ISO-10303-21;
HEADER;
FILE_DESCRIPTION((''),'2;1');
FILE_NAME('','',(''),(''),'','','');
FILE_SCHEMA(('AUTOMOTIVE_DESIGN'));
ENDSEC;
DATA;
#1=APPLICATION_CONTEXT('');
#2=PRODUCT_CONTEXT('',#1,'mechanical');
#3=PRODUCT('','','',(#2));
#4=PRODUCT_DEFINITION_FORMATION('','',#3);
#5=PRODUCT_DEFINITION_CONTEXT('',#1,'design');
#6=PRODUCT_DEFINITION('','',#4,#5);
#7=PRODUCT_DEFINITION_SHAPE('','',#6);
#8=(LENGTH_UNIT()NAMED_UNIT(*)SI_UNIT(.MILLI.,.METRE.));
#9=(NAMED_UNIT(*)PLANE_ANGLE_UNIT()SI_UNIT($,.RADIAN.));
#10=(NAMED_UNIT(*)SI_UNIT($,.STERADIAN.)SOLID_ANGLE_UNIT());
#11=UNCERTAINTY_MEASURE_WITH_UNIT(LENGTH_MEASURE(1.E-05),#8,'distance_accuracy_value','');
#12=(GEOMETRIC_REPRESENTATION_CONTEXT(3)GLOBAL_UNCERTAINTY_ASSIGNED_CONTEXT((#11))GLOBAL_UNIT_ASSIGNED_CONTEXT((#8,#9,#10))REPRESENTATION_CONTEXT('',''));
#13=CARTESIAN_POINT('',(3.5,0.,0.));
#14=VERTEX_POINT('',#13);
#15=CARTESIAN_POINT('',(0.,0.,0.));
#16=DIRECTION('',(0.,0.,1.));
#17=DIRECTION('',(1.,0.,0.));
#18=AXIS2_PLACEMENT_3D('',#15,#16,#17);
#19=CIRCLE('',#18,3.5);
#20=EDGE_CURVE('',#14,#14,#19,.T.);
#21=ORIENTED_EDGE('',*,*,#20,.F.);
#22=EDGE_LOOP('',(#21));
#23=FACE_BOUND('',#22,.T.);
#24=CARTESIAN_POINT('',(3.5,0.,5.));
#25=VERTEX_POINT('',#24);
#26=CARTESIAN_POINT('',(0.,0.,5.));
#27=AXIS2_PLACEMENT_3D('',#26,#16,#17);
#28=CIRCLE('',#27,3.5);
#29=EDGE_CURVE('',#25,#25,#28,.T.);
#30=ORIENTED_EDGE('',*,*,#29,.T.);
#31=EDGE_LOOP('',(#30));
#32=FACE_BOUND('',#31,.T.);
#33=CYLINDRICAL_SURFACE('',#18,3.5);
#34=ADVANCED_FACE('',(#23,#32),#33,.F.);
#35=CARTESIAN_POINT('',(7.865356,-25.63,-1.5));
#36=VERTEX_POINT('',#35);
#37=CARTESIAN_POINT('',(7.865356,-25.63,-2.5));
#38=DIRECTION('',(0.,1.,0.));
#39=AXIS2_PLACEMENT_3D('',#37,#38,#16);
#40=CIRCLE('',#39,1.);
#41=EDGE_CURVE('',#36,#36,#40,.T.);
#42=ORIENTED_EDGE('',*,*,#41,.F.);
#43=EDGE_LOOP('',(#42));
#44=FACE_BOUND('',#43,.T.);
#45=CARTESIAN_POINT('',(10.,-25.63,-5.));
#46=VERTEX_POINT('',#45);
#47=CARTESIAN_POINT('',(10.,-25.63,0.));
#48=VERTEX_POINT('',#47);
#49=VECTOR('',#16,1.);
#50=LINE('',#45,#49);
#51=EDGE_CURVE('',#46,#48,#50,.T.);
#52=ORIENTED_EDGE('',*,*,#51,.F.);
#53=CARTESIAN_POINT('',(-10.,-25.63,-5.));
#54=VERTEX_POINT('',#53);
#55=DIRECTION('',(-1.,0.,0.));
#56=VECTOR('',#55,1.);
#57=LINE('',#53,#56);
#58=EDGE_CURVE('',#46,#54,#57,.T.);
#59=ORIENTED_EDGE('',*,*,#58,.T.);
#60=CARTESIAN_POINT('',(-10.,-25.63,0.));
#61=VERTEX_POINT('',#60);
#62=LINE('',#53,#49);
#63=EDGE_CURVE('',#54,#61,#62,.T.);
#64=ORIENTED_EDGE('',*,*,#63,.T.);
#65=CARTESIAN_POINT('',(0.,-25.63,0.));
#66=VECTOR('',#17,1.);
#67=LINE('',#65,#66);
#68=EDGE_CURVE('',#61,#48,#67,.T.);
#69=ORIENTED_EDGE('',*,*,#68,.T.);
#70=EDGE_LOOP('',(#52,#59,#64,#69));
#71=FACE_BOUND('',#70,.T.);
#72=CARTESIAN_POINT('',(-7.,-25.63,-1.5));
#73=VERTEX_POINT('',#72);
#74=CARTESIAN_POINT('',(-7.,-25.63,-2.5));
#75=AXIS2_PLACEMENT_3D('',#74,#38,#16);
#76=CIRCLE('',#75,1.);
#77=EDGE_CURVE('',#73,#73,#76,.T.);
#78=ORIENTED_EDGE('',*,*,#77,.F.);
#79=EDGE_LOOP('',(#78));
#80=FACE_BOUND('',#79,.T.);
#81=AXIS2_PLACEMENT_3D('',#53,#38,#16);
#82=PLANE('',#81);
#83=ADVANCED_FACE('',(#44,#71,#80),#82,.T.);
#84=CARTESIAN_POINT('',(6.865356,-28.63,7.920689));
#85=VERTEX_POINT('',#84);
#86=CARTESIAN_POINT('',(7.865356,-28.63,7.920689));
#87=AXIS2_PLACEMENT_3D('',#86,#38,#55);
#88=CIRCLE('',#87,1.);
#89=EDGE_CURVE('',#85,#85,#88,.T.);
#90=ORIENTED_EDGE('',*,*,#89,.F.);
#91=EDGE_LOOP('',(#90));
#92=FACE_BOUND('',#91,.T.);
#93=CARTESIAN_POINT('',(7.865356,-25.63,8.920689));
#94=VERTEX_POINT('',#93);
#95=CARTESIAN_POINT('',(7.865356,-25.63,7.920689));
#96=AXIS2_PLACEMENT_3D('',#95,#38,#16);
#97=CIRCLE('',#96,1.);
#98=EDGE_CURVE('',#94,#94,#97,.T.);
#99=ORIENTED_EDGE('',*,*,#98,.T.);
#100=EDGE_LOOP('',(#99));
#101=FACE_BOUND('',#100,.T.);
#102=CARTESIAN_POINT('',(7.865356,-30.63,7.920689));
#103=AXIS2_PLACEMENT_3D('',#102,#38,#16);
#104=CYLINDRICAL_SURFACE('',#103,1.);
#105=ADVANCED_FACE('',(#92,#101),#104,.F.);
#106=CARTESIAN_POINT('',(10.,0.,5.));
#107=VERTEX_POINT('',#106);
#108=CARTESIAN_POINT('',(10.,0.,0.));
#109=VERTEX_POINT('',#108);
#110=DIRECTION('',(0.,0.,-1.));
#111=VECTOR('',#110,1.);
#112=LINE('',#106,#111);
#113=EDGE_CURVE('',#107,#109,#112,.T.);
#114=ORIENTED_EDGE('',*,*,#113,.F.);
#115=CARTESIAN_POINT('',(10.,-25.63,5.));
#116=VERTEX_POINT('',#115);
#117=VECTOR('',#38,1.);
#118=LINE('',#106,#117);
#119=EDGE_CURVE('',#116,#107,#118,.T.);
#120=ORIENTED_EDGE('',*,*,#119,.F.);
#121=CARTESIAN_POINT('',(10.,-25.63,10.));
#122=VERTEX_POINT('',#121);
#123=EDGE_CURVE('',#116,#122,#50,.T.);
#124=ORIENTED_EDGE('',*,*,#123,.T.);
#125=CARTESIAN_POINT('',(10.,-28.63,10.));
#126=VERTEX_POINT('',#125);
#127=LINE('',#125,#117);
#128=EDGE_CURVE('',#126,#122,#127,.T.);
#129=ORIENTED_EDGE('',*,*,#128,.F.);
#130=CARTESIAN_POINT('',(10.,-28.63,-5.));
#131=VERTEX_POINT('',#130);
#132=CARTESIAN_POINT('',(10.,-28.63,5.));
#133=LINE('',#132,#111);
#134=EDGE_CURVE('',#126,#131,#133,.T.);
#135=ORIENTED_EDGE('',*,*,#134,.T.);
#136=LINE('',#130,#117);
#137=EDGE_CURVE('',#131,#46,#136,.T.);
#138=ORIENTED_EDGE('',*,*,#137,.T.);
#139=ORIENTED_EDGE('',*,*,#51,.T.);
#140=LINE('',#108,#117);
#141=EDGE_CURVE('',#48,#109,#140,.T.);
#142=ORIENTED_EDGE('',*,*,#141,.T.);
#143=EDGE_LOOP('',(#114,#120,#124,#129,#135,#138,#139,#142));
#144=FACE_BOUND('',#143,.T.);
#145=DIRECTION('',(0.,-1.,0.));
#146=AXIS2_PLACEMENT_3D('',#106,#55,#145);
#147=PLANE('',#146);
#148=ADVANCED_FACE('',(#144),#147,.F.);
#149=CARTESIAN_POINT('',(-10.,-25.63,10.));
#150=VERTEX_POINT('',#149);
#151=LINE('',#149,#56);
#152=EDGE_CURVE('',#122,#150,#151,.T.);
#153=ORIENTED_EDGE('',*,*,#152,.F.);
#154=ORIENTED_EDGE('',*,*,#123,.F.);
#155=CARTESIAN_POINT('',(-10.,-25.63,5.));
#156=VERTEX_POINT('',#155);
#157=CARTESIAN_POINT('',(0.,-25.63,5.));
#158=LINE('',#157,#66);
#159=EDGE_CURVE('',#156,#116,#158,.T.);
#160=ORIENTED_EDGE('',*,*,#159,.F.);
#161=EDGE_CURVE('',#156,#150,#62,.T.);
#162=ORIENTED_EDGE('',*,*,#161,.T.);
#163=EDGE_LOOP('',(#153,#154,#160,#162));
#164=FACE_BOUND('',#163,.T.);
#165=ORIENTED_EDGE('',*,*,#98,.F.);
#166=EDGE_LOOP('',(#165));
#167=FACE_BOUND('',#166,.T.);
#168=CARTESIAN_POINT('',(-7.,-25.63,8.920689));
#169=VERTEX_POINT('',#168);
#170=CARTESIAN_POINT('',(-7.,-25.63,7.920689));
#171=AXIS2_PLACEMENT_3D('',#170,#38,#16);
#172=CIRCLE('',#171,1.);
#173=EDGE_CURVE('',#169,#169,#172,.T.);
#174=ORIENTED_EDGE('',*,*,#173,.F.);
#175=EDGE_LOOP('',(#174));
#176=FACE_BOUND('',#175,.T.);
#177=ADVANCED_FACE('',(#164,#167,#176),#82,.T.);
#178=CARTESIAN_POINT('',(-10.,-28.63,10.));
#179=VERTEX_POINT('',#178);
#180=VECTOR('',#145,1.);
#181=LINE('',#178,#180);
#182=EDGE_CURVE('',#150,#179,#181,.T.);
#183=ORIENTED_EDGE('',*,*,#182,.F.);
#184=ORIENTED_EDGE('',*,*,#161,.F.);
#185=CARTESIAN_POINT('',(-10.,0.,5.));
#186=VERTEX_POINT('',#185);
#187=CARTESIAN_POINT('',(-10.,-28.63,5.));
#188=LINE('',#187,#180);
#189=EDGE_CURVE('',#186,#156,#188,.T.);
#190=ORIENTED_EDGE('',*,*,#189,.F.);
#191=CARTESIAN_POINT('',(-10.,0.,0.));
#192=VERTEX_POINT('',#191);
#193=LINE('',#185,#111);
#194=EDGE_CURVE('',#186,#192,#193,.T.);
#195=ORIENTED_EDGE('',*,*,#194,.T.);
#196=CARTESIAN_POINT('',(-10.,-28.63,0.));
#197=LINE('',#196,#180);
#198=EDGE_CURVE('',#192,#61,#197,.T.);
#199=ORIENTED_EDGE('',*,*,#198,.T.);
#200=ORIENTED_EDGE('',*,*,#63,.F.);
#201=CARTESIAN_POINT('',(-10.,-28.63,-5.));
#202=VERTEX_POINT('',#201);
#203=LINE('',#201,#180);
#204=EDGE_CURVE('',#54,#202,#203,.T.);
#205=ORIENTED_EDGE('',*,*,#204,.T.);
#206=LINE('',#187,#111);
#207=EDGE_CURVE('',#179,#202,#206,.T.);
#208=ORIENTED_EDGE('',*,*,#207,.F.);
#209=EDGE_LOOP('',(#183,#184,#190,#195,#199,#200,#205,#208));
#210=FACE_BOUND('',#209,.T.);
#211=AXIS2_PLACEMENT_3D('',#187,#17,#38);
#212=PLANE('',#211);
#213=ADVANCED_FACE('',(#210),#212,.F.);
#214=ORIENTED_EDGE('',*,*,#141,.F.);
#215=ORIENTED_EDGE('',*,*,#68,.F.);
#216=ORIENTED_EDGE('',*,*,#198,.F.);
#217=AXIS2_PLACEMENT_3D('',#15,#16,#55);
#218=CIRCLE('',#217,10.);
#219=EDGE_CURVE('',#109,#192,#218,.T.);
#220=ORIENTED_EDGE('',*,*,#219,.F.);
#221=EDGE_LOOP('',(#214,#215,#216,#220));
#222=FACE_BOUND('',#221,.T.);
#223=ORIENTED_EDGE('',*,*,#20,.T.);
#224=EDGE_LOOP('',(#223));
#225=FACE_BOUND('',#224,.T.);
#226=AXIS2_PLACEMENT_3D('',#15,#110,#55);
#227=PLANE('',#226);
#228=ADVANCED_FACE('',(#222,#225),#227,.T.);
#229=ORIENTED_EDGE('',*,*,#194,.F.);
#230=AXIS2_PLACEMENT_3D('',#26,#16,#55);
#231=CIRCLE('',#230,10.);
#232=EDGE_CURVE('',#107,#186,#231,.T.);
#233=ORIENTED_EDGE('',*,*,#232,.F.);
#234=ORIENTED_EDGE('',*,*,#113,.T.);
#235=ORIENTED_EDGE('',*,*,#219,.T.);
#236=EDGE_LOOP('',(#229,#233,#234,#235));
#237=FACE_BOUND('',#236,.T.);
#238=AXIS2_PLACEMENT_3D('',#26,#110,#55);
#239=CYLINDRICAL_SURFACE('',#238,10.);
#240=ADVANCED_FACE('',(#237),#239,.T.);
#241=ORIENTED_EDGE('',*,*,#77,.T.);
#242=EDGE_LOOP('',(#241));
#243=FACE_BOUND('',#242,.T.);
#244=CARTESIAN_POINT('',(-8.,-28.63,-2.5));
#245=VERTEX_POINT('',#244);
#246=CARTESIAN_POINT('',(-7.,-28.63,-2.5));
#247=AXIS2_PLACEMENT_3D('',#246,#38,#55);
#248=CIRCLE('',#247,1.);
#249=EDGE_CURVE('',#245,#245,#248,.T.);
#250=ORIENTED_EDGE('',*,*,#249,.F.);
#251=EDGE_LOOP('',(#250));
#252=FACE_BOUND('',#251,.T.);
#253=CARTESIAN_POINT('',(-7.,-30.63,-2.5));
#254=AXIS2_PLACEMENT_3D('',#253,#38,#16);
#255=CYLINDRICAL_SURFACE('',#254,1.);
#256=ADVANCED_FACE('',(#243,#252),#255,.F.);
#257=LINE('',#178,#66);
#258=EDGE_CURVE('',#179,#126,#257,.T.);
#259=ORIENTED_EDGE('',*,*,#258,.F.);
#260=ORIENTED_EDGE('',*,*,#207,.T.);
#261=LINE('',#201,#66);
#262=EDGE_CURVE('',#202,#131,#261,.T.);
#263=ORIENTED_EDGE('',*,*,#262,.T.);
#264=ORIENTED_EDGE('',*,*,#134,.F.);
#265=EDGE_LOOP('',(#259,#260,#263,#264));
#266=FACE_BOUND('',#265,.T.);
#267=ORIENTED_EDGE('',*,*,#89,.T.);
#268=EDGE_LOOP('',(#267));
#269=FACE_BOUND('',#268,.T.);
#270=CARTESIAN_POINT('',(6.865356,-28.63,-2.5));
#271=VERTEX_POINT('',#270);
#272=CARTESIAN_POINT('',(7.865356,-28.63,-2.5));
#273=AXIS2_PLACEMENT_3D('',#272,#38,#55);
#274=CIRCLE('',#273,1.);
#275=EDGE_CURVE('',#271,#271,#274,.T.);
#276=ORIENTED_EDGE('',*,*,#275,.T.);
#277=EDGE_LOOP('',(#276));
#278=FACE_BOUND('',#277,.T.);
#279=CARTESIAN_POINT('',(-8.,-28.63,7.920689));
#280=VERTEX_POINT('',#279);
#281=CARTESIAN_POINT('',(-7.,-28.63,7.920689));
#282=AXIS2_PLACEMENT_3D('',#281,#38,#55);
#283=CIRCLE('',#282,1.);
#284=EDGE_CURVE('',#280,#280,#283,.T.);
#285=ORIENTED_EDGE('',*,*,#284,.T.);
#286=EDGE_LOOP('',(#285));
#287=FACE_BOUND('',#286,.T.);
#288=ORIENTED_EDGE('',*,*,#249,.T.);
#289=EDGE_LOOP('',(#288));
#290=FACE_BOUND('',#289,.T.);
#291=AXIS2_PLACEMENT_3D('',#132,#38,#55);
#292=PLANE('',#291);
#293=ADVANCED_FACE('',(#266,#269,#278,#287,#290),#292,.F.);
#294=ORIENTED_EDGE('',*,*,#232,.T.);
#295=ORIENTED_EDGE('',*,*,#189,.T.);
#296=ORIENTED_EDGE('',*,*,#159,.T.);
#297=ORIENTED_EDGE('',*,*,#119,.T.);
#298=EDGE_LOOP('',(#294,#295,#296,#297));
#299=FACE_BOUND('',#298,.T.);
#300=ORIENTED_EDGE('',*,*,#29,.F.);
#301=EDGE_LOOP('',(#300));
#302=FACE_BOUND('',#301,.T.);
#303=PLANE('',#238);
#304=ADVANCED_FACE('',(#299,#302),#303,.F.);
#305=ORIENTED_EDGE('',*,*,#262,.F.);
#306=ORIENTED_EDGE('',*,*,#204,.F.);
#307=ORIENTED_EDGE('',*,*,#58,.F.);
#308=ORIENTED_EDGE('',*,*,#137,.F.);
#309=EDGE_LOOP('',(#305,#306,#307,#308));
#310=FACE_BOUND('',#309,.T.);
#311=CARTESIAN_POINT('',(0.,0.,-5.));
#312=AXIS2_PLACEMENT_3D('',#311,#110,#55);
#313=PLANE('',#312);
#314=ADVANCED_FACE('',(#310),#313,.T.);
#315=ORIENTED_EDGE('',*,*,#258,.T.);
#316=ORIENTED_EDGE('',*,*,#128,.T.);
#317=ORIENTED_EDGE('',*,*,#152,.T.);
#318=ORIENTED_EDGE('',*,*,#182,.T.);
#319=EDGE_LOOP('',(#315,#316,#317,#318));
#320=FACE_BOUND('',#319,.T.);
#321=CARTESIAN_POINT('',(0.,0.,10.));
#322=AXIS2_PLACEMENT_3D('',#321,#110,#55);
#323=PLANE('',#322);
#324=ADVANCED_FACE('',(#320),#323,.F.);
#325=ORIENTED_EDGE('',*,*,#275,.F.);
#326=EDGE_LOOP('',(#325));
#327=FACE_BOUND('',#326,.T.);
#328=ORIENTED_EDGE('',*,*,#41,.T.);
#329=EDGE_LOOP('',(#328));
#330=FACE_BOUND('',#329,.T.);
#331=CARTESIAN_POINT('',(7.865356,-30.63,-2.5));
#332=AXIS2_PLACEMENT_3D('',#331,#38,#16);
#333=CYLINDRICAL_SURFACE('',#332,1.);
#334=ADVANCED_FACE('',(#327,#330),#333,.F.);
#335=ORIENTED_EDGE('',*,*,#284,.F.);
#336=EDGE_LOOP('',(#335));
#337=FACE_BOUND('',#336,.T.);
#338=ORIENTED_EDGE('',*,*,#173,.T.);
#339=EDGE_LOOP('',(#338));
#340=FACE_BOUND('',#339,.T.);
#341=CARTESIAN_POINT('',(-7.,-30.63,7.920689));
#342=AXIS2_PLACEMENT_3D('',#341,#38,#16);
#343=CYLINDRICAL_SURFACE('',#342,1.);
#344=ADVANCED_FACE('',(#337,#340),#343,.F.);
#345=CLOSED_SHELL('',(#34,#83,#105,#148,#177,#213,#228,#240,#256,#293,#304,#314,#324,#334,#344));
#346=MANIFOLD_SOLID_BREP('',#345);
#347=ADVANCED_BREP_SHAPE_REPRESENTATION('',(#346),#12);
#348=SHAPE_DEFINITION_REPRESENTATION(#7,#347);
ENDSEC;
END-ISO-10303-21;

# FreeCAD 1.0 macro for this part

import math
import FreeCAD as App
import Part
import Sketcher
from FreeCAD import Vector
Q = App.Units.Quantity


def add_polygon(sketch, points):
    """Adds a closed chain of lines whose ends are joined by coincident constraints."""
    first, n = sketch.GeometryCount, len(points)
    for a, b in zip(points, points[1:] + points[:1]):
        sketch.addGeometry(Part.LineSegment(App.Vector(*a, 0), App.Vector(*b, 0)), False)
    for i in range(n):
        sketch.addConstraint(Sketcher.Constraint("Coincident", first + i, 2, first + (i + 1) % n, 1))

doc = App.newDocument("Part")
body = doc.addObject("PartDesign::Body", "Body")

# Sketch on XY plane
sketch1 = doc.addObject("Sketcher::SketchObject", "Sketch")
body.addObject(sketch1)
sketch1.AttachmentSupport = (doc.XY_Plane, [""])
sketch1.MapMode = "FlatFace"
sketch1.addGeometry([
    Part.LineSegment(Vector(-10, 0, 0), Vector(-10, -28.63, 0)),
    Part.LineSegment(Vector(-10, -28.63, 0), Vector(10, -28.63, 0)),
    Part.LineSegment(Vector(10, -28.63, 0), Vector(10, 0, 0)),
    Part.ArcOfCircle(Part.Circle(Vector(0, 0, 0), Vector(0, 0, 1), 10), math.radians(0), math.radians(180)),
], False)
sketch1.addConstraint([
    Sketcher.Constraint("Coincident", 0, 2, 1, 1),
    Sketcher.Constraint("Coincident", 1, 2, 2, 1),
    Sketcher.Constraint("Tangent", 2, 2, 3, 1),
    Sketcher.Constraint("Tangent", 3, 2, 0, 1),
    Sketcher.Constraint("Vertical", 0),
    Sketcher.Constraint("Horizontal", 1),
    Sketcher.Constraint("Vertical", 2),
    Sketcher.Constraint("Coincident", 3, 3, -1, 1),
    Sketcher.Constraint("Radius", 3, Q("10 mm")),
    Sketcher.Constraint("DistanceY", 0, 2, 0, 1, Q("28.63 mm")),
])
pad1 = doc.addObject("PartDesign::Pad", "Pad")
body.addObject(pad1)
pad1.Profile = sketch1
pad1.Length = 5

# Sketch on XY plane
sketch2 = doc.addObject("Sketcher::SketchObject", "Sketch001")
body.addObject(sketch2)
sketch2.AttachmentSupport = (doc.XY_Plane, [""])
sketch2.MapMode = "FlatFace"
sketch2.AttachmentOffset = App.Placement(Vector(0, 0, 5), App.Rotation())
sketch2.addGeometry(Part.Circle(Vector(0, 0, 0), Vector(0, 0, 1), 3.5), False)
sketch2.addConstraint([
    Sketcher.Constraint("Coincident", 0, 3, -1, 1),
    Sketcher.Constraint("Diameter", 0, Q("7 mm")),
])
pocket1 = doc.addObject("PartDesign::Pocket", "Pocket")
body.addObject(pocket1)
pocket1.Profile = sketch2
pocket1.Length = 5

# Sketch on XY plane
sketch3 = doc.addObject("Sketcher::SketchObject", "Sketch002")
body.addObject(sketch3)
sketch3.AttachmentSupport = (doc.XY_Plane, [""])
sketch3.MapMode = "FlatFace"
sketch3.AttachmentOffset = App.Placement(Vector(0, 0, 5), App.Rotation())
add_polygon(sketch3, [(-10, -25.63), (-10, -28.63), (10, -28.63), (10, -25.63)])  # lines 0-3
sketch3.addConstraint([
    Sketcher.Constraint("Vertical", 0),
    Sketcher.Constraint("Horizontal", 1),
    Sketcher.Constraint("Vertical", 2),
    Sketcher.Constraint("Horizontal", 3),
    Sketcher.Constraint("DistanceX", 1, 1, 1, 2, Q("20 mm")),
    Sketcher.Constraint("DistanceY", 0, 2, 0, 1, Q("3 mm")),
    Sketcher.Constraint("DistanceX", 0, 2, -1, 1, Q("10 mm")),
    Sketcher.Constraint("DistanceY", 0, 2, -1, 1, Q("28.63 mm")),
])
pad2 = doc.addObject("PartDesign::Pad", "Pad001")
body.addObject(pad2)
pad2.Profile = sketch3
pad2.Type = "TwoLengths"
pad2.Length = 5
pad2.Length2 = 10

# Sketch on XZ plane
sketch4 = doc.addObject("Sketcher::SketchObject", "Sketch003")
body.addObject(sketch4)
sketch4.AttachmentSupport = (doc.XZ_Plane, [""])
sketch4.MapMode = "FlatFace"
sketch4.AttachmentOffset = App.Placement(Vector(0, 0, 25.63), App.Rotation())
sketch4.addGeometry([
    Part.Circle(Vector(-7, 7.920689, 0), Vector(0, 0, 1), 1),
    Part.Circle(Vector(7.865356, 7.920689, 0), Vector(0, 0, 1), 1),
    Part.Circle(Vector(7.865356, -2.5, 0), Vector(0, 0, 1), 1),
    Part.Circle(Vector(-7, -2.5, 0), Vector(0, 0, 1), 1),
], False)
sketch4.addConstraint([
    Sketcher.Constraint("Equal", 0, 1),
    Sketcher.Constraint("Equal", 1, 2),
    Sketcher.Constraint("Equal", 2, 3),
    Sketcher.Constraint("Horizontal", 0, 3, 1, 3),
    Sketcher.Constraint("Horizontal", 2, 3, 3, 3),
    Sketcher.Constraint("Vertical", 1, 3, 2, 3),
    Sketcher.Constraint("Vertical", 0, 3, 3, 3),
    Sketcher.Constraint("Diameter", 0, Q("2 mm")),
    Sketcher.Constraint("DistanceX", 0, 3, -1, 1, Q("7 mm")),
    Sketcher.Constraint("DistanceY", 2, 3, -1, 1, Q("2.5 mm")),
    Sketcher.Constraint("DistanceY", -1, 1, 0, 3, Q("7.920689 mm")),
    Sketcher.Constraint("DistanceX", -1, 1, 1, 3, Q("7.865356 mm")),
])
pocket2 = doc.addObject("PartDesign::Pocket", "Pocket001")
body.addObject(pocket2)
pocket2.Profile = sketch4
pocket2.Length = 5
pocket2.Reversed = True

doc.recompute()
